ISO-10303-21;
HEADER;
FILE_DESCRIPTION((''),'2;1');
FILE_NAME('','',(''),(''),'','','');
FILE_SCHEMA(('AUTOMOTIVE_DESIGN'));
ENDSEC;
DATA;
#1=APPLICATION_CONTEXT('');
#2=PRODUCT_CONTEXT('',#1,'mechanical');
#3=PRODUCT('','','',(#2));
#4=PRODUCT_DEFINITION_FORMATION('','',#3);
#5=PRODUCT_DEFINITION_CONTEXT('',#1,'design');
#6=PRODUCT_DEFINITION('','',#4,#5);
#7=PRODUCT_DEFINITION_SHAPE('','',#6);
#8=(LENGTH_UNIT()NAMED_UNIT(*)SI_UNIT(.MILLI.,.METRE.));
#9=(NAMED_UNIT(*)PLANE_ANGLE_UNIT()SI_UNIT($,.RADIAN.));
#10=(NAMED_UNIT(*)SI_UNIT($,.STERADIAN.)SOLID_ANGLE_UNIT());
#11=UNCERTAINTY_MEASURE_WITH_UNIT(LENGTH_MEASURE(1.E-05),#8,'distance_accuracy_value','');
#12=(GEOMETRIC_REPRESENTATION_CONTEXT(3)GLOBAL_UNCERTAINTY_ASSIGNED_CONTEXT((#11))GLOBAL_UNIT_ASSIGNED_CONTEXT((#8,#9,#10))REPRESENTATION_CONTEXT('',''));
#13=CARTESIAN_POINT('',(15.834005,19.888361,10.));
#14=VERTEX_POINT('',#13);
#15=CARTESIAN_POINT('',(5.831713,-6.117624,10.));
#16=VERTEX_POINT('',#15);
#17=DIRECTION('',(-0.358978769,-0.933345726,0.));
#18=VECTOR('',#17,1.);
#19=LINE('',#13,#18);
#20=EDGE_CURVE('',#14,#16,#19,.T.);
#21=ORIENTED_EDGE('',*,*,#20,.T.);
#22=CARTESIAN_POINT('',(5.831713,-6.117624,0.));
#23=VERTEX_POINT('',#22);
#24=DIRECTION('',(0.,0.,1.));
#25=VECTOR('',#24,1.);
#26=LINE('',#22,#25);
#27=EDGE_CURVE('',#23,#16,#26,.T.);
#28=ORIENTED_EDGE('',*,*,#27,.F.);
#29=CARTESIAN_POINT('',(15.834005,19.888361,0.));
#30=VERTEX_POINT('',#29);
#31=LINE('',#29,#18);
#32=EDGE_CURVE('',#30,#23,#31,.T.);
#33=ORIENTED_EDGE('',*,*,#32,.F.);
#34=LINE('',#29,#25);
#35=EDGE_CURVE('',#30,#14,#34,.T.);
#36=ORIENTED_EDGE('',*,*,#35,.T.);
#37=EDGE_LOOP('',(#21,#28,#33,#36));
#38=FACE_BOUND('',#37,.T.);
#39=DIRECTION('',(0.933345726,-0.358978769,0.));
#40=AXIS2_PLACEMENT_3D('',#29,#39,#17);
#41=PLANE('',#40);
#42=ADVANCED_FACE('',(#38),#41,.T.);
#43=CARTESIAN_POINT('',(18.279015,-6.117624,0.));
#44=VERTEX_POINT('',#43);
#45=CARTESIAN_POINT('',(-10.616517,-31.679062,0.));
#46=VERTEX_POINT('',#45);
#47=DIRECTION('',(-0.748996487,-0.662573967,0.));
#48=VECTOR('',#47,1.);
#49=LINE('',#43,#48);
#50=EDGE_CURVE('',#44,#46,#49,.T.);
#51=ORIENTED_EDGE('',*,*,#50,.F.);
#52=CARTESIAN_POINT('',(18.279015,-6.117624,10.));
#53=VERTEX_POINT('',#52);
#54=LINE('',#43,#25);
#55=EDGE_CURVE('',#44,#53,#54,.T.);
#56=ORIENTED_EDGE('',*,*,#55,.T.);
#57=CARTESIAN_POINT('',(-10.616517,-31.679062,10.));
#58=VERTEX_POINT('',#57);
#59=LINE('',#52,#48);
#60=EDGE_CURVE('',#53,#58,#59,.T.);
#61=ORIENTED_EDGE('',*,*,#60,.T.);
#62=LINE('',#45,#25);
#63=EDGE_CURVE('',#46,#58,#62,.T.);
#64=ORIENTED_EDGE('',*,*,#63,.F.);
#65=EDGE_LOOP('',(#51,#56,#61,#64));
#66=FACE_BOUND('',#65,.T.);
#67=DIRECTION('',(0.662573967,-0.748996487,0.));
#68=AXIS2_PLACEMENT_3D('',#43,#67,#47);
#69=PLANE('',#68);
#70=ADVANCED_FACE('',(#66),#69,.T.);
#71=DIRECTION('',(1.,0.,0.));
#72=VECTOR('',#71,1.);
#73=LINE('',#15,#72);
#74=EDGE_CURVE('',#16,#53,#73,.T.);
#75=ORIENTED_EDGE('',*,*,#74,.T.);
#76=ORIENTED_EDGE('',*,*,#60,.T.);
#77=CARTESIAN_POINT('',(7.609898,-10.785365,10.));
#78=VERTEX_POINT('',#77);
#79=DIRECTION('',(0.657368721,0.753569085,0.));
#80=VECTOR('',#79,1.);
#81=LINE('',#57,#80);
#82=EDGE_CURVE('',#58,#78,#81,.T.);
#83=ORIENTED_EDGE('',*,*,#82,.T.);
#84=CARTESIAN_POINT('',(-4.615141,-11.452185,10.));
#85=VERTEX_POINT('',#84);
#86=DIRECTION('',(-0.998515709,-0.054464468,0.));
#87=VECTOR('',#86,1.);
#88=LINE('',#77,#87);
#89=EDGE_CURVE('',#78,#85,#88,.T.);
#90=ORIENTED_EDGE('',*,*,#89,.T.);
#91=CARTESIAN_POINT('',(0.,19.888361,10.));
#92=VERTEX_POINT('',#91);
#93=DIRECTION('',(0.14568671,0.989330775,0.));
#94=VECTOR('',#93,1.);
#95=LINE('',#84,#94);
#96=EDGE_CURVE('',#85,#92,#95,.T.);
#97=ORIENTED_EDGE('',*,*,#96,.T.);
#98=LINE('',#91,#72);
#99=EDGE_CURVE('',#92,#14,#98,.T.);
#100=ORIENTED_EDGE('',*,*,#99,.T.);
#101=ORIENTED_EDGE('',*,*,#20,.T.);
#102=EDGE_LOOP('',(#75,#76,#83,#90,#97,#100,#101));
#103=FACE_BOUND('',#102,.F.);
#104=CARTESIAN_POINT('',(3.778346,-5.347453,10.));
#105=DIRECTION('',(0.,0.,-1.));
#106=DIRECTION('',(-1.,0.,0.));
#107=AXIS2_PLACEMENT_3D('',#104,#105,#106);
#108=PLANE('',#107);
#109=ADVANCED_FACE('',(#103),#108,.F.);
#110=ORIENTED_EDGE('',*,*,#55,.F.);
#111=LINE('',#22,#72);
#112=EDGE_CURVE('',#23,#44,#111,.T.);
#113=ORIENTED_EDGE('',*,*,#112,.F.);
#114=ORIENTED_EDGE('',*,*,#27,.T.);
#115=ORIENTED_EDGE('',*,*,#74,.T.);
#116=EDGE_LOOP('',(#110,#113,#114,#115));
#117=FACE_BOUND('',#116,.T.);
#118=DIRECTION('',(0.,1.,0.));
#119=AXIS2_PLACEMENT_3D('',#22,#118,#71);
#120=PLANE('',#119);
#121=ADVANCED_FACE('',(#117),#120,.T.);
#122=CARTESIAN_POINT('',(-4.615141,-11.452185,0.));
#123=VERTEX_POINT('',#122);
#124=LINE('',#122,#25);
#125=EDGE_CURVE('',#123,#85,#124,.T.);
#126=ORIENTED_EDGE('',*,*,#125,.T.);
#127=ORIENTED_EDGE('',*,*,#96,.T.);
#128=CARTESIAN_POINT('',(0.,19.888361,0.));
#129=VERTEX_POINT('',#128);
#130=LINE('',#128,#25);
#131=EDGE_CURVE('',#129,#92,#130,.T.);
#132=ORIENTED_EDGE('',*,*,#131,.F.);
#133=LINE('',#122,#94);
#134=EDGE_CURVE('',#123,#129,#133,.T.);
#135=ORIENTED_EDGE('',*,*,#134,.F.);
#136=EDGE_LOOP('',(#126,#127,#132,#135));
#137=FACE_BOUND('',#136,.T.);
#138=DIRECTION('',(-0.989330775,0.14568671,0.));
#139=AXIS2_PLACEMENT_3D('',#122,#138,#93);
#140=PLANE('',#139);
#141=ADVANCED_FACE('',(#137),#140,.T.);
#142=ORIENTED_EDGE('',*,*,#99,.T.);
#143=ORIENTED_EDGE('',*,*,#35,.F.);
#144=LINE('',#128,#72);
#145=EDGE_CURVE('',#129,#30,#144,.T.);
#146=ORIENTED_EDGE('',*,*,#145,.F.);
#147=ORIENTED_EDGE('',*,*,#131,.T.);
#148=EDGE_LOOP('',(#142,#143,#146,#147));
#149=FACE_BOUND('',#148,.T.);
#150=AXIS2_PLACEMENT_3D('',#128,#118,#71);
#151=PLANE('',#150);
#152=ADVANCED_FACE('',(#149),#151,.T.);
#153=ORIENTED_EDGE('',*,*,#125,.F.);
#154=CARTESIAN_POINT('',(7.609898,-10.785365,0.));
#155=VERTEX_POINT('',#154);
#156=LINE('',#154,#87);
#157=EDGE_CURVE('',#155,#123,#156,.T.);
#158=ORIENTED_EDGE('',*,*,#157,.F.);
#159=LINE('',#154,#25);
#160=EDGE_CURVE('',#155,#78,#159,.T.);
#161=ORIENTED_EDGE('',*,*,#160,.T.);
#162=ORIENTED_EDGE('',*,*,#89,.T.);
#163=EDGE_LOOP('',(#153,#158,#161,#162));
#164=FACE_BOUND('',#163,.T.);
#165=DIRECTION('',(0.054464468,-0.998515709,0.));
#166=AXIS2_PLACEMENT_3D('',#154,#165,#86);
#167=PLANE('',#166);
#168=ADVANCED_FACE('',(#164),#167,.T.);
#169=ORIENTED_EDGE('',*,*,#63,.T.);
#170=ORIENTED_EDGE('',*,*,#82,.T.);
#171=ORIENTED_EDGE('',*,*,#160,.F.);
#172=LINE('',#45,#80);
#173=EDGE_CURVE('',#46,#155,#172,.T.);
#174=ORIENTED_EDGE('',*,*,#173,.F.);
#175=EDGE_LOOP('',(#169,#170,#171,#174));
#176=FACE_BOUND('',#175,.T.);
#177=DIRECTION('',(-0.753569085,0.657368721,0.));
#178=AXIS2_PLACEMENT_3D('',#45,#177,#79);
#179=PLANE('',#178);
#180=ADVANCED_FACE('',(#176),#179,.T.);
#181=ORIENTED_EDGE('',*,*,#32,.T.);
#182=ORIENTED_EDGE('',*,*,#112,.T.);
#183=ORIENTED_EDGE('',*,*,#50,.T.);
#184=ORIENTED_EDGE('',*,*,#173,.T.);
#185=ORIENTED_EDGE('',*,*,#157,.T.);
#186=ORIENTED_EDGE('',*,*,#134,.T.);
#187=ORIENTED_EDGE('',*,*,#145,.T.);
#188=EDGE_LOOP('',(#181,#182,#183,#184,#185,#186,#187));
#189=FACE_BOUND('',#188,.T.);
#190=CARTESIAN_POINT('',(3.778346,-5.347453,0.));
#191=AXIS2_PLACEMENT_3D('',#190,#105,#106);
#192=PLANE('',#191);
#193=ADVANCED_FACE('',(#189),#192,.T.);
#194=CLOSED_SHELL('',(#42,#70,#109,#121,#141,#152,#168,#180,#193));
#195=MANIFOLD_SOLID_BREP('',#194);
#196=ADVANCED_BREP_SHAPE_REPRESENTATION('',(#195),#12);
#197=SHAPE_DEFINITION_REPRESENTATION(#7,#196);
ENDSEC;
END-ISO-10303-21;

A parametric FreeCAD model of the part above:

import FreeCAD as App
import Part
import Sketcher


def add_polygon(sketch, points):
    """Adds a closed chain of lines whose ends are joined by coincident constraints."""
    first, n = sketch.GeometryCount, len(points)
    for a, b in zip(points, points[1:] + points[:1]):
        sketch.addGeometry(Part.LineSegment(App.Vector(*a, 0), App.Vector(*b, 0)), False)
    for i in range(n):
        sketch.addConstraint(Sketcher.Constraint("Coincident", first + i, 2, first + (i + 1) % n, 1))

doc = App.newDocument("Part")
body = doc.addObject("PartDesign::Body", "Body")

# Sketch on XY plane
sketch1 = body.newObject("Sketcher::SketchObject", "Sketch")
sketch1.AttachmentSupport = (doc.getObject("XY_Plane"), [""])
sketch1.MapMode = "FlatFace"
add_polygon(sketch1, [(15.834005, 19.888361), (0, 19.888361), (-4.615141, -11.452185), (7.609898, -10.785365), (-10.616517, -31.679062), (18.279015, -6.117624), (5.831713, -6.117624)])  # lines 0-6
sketch1.addConstraint([
    Sketcher.Constraint("Horizontal", 0),
    Sketcher.Constraint("Horizontal", 5),
    Sketcher.Constraint("PointOnObject", 0, 2, -2),
    Sketcher.Constraint("DistanceX", -1, 1, 2, 2, 7.609898),
    Sketcher.Constraint("Distance", 1, 31.678531),
    Sketcher.Constraint("Distance", 2, 12.243211),
    Sketcher.Constraint("Distance", 3, 27.726319),
    Sketcher.Constraint("DistanceX", 0, 2, 0, 1, 15.834005),
    Sketcher.Constraint("DistanceX", 5, 2, 5, 1, 12.447302),
    Sketcher.Constraint("DistanceY", -1, 1, 0, 2, 19.888361),
    Sketcher.Constraint("DistanceX", 1, 2, -1, 1, 4.615141),
    Sketcher.Constraint("DistanceY", 3, 2, -1, 1, 31.679062),
    Sketcher.Constraint("DistanceY", 2, 2, 4, 2, 4.667741),
    Sketcher.Constraint("DistanceX", 3, 2, 5, 2, 16.44823),
])
pad1 = body.newObject("PartDesign::Pad", "Pad")
pad1.Profile = sketch1
pad1.Length = 10

doc.recompute()
